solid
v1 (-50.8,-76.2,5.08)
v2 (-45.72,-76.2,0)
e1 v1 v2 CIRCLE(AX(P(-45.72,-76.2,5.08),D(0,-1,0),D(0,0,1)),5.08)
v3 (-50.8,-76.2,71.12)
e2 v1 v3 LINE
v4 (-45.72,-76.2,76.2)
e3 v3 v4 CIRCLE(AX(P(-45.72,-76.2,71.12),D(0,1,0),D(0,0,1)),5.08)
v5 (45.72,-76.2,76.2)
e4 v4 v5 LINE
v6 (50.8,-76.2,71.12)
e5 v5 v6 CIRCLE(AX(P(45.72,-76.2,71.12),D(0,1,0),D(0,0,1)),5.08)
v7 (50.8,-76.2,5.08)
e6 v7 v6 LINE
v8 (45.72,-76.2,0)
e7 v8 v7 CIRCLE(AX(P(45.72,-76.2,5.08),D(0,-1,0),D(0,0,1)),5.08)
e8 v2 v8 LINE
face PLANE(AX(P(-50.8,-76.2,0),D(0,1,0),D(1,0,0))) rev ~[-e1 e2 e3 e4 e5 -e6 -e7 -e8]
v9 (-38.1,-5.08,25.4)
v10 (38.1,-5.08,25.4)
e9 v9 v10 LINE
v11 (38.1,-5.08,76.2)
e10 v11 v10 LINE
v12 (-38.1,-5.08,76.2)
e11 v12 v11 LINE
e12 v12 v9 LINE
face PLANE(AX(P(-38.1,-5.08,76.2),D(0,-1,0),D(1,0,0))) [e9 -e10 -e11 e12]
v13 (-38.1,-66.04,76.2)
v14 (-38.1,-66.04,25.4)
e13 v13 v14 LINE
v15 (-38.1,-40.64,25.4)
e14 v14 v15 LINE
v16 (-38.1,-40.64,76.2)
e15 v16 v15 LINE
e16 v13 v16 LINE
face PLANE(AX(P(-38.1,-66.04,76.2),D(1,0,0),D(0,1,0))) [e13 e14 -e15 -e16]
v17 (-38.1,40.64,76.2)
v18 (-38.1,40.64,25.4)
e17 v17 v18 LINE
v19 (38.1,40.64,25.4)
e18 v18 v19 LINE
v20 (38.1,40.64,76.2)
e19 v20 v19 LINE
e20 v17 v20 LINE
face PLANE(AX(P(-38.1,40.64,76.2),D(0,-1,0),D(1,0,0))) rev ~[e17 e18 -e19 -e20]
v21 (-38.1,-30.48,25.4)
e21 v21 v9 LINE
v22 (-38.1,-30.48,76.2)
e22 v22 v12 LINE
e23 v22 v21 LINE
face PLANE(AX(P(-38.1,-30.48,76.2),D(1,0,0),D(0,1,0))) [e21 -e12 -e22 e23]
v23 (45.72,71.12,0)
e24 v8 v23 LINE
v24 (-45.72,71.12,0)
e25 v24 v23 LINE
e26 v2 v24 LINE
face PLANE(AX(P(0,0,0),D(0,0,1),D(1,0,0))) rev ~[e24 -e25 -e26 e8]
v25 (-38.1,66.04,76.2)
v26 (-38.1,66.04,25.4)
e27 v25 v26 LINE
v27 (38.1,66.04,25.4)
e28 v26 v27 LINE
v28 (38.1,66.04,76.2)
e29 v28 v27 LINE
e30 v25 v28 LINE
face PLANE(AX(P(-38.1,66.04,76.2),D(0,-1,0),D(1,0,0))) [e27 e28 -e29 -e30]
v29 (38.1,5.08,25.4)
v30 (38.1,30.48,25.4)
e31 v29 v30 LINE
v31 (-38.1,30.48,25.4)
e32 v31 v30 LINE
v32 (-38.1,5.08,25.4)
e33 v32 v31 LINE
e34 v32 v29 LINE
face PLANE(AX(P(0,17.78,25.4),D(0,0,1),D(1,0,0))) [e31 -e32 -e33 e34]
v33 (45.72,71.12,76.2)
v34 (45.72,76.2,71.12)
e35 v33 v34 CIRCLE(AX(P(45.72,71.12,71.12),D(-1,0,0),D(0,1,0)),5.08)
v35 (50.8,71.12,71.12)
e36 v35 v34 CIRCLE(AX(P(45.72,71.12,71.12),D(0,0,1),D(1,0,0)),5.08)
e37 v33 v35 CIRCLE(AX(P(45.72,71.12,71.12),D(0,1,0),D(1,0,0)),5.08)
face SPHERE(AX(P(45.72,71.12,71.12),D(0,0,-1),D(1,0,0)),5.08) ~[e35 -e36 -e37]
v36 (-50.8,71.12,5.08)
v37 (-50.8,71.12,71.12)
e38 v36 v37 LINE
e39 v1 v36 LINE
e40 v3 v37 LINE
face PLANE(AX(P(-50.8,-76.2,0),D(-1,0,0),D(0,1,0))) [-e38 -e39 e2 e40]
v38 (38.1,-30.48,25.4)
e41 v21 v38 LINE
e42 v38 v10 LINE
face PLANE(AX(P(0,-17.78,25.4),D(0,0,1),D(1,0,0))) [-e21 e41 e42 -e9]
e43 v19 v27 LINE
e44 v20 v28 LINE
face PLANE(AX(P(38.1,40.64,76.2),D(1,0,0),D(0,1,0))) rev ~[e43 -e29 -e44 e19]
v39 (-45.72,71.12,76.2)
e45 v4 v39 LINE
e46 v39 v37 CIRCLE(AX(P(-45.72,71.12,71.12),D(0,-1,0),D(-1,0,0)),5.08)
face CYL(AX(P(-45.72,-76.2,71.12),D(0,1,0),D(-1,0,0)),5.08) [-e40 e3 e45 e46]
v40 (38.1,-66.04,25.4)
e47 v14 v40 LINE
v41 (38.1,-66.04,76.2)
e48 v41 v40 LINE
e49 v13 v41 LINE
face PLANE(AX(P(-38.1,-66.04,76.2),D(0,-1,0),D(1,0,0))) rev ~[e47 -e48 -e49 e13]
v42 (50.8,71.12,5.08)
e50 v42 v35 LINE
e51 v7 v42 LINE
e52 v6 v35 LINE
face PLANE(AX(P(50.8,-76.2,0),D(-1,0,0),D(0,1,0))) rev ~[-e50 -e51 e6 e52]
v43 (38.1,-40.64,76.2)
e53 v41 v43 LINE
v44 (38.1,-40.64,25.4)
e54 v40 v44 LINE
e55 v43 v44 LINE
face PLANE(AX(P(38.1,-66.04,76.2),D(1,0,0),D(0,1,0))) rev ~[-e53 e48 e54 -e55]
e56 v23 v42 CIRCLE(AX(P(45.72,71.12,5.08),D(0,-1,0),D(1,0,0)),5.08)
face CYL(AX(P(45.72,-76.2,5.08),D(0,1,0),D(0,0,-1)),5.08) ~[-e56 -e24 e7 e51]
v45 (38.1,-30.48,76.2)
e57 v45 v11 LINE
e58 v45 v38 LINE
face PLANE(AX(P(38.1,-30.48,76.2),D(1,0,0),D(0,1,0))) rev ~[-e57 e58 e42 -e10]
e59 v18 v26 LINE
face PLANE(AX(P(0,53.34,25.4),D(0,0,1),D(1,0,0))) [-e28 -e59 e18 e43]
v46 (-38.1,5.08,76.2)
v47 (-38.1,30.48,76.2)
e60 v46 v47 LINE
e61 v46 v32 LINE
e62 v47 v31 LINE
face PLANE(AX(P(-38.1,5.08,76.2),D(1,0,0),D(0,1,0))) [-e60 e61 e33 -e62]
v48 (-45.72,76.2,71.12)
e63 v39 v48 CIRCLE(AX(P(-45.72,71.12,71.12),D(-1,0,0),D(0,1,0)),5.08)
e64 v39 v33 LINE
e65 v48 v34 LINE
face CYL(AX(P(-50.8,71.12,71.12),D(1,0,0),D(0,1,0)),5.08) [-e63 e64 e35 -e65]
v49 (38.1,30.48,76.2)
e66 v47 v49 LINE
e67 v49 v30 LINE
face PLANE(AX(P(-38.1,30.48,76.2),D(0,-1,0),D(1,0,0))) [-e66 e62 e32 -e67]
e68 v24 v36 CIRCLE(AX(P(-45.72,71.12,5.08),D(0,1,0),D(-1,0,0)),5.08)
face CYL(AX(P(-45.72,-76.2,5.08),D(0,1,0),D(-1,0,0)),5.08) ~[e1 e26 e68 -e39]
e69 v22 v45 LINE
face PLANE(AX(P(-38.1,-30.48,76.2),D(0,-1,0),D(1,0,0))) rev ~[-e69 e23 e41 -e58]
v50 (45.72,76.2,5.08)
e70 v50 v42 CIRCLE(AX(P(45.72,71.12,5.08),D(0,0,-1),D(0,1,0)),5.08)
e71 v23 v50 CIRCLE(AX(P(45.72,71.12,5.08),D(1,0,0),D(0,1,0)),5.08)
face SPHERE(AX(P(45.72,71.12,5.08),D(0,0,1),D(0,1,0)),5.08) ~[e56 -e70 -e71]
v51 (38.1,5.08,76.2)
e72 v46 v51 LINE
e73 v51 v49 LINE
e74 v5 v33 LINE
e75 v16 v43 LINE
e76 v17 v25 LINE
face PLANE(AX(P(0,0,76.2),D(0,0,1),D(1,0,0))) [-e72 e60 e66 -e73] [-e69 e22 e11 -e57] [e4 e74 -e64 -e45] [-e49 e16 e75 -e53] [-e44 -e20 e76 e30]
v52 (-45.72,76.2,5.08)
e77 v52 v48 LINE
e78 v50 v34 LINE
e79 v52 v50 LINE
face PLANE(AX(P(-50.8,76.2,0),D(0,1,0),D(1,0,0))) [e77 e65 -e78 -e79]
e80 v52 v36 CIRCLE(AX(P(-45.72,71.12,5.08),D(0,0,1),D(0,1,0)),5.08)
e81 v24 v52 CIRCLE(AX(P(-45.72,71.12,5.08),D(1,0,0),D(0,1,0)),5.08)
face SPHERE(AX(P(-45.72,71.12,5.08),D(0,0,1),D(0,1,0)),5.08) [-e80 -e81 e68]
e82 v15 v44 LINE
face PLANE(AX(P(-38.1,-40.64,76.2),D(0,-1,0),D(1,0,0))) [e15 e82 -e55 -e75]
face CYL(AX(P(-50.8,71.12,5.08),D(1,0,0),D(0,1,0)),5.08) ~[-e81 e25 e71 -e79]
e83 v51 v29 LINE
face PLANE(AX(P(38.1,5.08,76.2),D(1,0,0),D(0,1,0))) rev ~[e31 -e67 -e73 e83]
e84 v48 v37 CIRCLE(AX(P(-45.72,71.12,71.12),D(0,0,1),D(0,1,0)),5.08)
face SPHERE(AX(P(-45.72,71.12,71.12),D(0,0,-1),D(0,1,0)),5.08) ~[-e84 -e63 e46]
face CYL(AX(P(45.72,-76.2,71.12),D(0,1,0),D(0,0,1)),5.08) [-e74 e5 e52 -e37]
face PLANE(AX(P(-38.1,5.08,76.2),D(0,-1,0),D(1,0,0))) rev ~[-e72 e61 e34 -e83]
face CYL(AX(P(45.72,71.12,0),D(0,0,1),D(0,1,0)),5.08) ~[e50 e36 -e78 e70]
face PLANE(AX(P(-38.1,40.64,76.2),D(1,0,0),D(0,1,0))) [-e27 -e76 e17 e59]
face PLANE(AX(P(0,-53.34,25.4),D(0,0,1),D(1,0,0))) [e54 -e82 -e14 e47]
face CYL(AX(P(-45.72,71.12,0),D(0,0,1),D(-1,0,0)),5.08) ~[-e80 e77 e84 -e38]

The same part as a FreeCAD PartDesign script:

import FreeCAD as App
import Part
import Sketcher
Q = App.Units.Quantity


def edges_at(feature, points):
    """Names of the edges that pass closest to the given points."""
    edges = feature.Shape.Edges
    near = lambda p: min(range(len(edges)), key=lambda i: edges[i].distToShape(Part.Vertex(*p))[0])
    return sorted({f"Edge{near(p) + 1}" for p in points})

doc = App.newDocument("Part")
body = doc.addObject("PartDesign::Body", "Body")

# Sketch on XY plane
sketch1 = body.newObject("Sketcher::SketchObject", "Sketch")
sketch1.AttachmentSupport = (doc.getObject("XY_Plane"), [""])
sketch1.MapMode = "FlatFace"
sketch1.addGeometry([
    Part.LineSegment(App.Vector(-50.8, 76.2, 0), App.Vector(-50.8, -76.2, 0)),
    Part.LineSegment(App.Vector(-50.8, -76.2, 0), App.Vector(50.8, -76.2, 0)),
    Part.LineSegment(App.Vector(50.8, -76.2, 0), App.Vector(50.8, 76.2, 0)),
    Part.LineSegment(App.Vector(50.8, 76.2, 0), App.Vector(-50.8, 76.2, 0)),
], False)
sketch1.addConstraint([
    Sketcher.Constraint("Coincident", 0, 2, 1, 1),
    Sketcher.Constraint("Coincident", 1, 2, 2, 1),
    Sketcher.Constraint("Coincident", 2, 2, 3, 1),
    Sketcher.Constraint("Coincident", 3, 2, 0, 1),
    Sketcher.Constraint("Vertical", 0),
    Sketcher.Constraint("Horizontal", 1),
    Sketcher.Constraint("Vertical", 2),
    Sketcher.Constraint("Horizontal", 3),
    Sketcher.Constraint("Symmetric", 0, 2, 2, 2, -1, 1),
    Sketcher.Constraint("DistanceX", 1, 1, 1, 2, Q("4 in")),
    Sketcher.Constraint("DistanceY", 0, 2, 0, 1, Q("6 in")),
])
pad1 = body.newObject("PartDesign::Pad", "Pad")
pad1.Profile = sketch1
pad1.Length = Q("3 in")

# Sketch on XY plane
sketch2 = body.newObject("Sketcher::SketchObject", "Sketch001")
sketch2.AttachmentSupport = (doc.getObject("XY_Plane"), [""])
sketch2.MapMode = "FlatFace"
sketch2.AttachmentOffset = App.Placement(App.Vector(0, 0, 3 * 25.4), App.Rotation())
sketch2.addGeometry([
    Part.LineSegment(App.Vector(-38.1, 66.04, 0), App.Vector(-38.1, 40.64, 0)),  # 0
    Part.LineSegment(App.Vector(-38.1, 40.64, 0), App.Vector(38.1, 40.64, 0)),  # 1
    Part.LineSegment(App.Vector(38.1, 40.64, 0), App.Vector(38.1, 66.04, 0)),  # 2
    Part.LineSegment(App.Vector(38.1, 66.04, 0), App.Vector(-38.1, 66.04, 0)),  # 3
    Part.LineSegment(App.Vector(-38.1, 30.48, 0), App.Vector(-38.1, 5.08, 0)),  # 4
    Part.LineSegment(App.Vector(-38.1, 5.08, 0), App.Vector(38.1, 5.08, 0)),  # 5
    Part.LineSegment(App.Vector(38.1, 5.08, 0), App.Vector(38.1, 30.48, 0)),  # 6
    Part.LineSegment(App.Vector(38.1, 30.48, 0), App.Vector(-38.1, 30.48, 0)),  # 7
    Part.LineSegment(App.Vector(-38.1, -5.08, 0), App.Vector(-38.1, -30.48, 0)),  # 8
    Part.LineSegment(App.Vector(-38.1, -30.48, 0), App.Vector(38.1, -30.48, 0)),  # 9
    Part.LineSegment(App.Vector(38.1, -30.48, 0), App.Vector(38.1, -5.08, 0)),  # 10
    Part.LineSegment(App.Vector(38.1, -5.08, 0), App.Vector(-38.1, -5.08, 0)),  # 11
    Part.LineSegment(App.Vector(-38.1, -40.64, 0), App.Vector(-38.1, -66.04, 0)),  # 12
    Part.LineSegment(App.Vector(-38.1, -66.04, 0), App.Vector(38.1, -66.04, 0)),  # 13
    Part.LineSegment(App.Vector(38.1, -66.04, 0), App.Vector(38.1, -40.64, 0)),  # 14
    Part.LineSegment(App.Vector(38.1, -40.64, 0), App.Vector(-38.1, -40.64, 0)),  # 15
], False)
sketch2.addConstraint([
    Sketcher.Constraint("Coincident", 0, 2, 1, 1),
    Sketcher.Constraint("Coincident", 1, 2, 2, 1),
    Sketcher.Constraint("Coincident", 2, 2, 3, 1),
    Sketcher.Constraint("Coincident", 3, 2, 0, 1),
    Sketcher.Constraint("Coincident", 4, 2, 5, 1),
    Sketcher.Constraint("Coincident", 5, 2, 6, 1),
    Sketcher.Constraint("Coincident", 6, 2, 7, 1),
    Sketcher.Constraint("Coincident", 7, 2, 4, 1),
    Sketcher.Constraint("Coincident", 8, 2, 9, 1),
    Sketcher.Constraint("Coincident", 9, 2, 10, 1),
    Sketcher.Constraint("Coincident", 10, 2, 11, 1),
    Sketcher.Constraint("Coincident", 11, 2, 8, 1),
    Sketcher.Constraint("Coincident", 12, 2, 13, 1),
    Sketcher.Constraint("Coincident", 13, 2, 14, 1),
    Sketcher.Constraint("Coincident", 14, 2, 15, 1),
    Sketcher.Constraint("Coincident", 15, 2, 12, 1),
    Sketcher.Constraint("Vertical", 0),
    Sketcher.Constraint("Horizontal", 1),
    Sketcher.Constraint("Vertical", 2),
    Sketcher.Constraint("Horizontal", 3),
    Sketcher.Constraint("Vertical", 4),
    Sketcher.Constraint("Horizontal", 5),
    Sketcher.Constraint("Vertical", 6),
    Sketcher.Constraint("Horizontal", 7),
    Sketcher.Constraint("Vertical", 8),
    Sketcher.Constraint("Horizontal", 9),
    Sketcher.Constraint("Vertical", 10),
    Sketcher.Constraint("Horizontal", 11),
    Sketcher.Constraint("Vertical", 12),
    Sketcher.Constraint("Horizontal", 13),
    Sketcher.Constraint("Vertical", 14),
    Sketcher.Constraint("Horizontal", 15),
    Sketcher.Constraint("Symmetric", 6, 2, 8, 2, -1, 1),
    Sketcher.Constraint("Symmetric", 4, 2, 10, 2, -1, 1),
    Sketcher.Constraint("Symmetric", 2, 2, 12, 2, -1, 1),
    Sketcher.Constraint("Symmetric", 0, 2, 14, 2, -1, 1),
    Sketcher.Constraint("Vertical", 3, 2, 4, 2),
    Sketcher.Constraint("Vertical", 2, 2, 5, 2),
    Sketcher.Constraint("Vertical", 7, 2, 8, 2),
    Sketcher.Constraint("Equal", 2, 4),
    Sketcher.Constraint("DistanceX", 1, 1, 1, 2, Q("3 in")),
    Sketcher.Constraint("DistanceY", 0, 2, 0, 1, Q("1 in")),
    Sketcher.Constraint("DistanceY", -1, 1, 0, 2, Q("1.6 in")),
    Sketcher.Constraint("DistanceY", -1, 1, 4, 2, Q("0.2 in")),
])
pocket1 = body.newObject("PartDesign::Pocket", "Pocket")
pocket1.Profile = sketch2
pocket1.Length = Q("2 in")
doc.recompute()

fillet = body.newObject("PartDesign::Fillet", "Fillet")
fillet.Base = (pocket1, edges_at(pocket1, [
    (-50.8, 76.2, 38.1),
    (50.8, 76.2, 38.1),
    (50.8, 0, 76.2),
    (0, 76.2, 76.2),
    (0, 76.2, 0),
    (-50.8, 0, 0),
    (50.8, 0, 0),
    (-50.8, 0, 76.2),
]))
fillet.Radius = Q("0.2 in")

doc.recompute()
